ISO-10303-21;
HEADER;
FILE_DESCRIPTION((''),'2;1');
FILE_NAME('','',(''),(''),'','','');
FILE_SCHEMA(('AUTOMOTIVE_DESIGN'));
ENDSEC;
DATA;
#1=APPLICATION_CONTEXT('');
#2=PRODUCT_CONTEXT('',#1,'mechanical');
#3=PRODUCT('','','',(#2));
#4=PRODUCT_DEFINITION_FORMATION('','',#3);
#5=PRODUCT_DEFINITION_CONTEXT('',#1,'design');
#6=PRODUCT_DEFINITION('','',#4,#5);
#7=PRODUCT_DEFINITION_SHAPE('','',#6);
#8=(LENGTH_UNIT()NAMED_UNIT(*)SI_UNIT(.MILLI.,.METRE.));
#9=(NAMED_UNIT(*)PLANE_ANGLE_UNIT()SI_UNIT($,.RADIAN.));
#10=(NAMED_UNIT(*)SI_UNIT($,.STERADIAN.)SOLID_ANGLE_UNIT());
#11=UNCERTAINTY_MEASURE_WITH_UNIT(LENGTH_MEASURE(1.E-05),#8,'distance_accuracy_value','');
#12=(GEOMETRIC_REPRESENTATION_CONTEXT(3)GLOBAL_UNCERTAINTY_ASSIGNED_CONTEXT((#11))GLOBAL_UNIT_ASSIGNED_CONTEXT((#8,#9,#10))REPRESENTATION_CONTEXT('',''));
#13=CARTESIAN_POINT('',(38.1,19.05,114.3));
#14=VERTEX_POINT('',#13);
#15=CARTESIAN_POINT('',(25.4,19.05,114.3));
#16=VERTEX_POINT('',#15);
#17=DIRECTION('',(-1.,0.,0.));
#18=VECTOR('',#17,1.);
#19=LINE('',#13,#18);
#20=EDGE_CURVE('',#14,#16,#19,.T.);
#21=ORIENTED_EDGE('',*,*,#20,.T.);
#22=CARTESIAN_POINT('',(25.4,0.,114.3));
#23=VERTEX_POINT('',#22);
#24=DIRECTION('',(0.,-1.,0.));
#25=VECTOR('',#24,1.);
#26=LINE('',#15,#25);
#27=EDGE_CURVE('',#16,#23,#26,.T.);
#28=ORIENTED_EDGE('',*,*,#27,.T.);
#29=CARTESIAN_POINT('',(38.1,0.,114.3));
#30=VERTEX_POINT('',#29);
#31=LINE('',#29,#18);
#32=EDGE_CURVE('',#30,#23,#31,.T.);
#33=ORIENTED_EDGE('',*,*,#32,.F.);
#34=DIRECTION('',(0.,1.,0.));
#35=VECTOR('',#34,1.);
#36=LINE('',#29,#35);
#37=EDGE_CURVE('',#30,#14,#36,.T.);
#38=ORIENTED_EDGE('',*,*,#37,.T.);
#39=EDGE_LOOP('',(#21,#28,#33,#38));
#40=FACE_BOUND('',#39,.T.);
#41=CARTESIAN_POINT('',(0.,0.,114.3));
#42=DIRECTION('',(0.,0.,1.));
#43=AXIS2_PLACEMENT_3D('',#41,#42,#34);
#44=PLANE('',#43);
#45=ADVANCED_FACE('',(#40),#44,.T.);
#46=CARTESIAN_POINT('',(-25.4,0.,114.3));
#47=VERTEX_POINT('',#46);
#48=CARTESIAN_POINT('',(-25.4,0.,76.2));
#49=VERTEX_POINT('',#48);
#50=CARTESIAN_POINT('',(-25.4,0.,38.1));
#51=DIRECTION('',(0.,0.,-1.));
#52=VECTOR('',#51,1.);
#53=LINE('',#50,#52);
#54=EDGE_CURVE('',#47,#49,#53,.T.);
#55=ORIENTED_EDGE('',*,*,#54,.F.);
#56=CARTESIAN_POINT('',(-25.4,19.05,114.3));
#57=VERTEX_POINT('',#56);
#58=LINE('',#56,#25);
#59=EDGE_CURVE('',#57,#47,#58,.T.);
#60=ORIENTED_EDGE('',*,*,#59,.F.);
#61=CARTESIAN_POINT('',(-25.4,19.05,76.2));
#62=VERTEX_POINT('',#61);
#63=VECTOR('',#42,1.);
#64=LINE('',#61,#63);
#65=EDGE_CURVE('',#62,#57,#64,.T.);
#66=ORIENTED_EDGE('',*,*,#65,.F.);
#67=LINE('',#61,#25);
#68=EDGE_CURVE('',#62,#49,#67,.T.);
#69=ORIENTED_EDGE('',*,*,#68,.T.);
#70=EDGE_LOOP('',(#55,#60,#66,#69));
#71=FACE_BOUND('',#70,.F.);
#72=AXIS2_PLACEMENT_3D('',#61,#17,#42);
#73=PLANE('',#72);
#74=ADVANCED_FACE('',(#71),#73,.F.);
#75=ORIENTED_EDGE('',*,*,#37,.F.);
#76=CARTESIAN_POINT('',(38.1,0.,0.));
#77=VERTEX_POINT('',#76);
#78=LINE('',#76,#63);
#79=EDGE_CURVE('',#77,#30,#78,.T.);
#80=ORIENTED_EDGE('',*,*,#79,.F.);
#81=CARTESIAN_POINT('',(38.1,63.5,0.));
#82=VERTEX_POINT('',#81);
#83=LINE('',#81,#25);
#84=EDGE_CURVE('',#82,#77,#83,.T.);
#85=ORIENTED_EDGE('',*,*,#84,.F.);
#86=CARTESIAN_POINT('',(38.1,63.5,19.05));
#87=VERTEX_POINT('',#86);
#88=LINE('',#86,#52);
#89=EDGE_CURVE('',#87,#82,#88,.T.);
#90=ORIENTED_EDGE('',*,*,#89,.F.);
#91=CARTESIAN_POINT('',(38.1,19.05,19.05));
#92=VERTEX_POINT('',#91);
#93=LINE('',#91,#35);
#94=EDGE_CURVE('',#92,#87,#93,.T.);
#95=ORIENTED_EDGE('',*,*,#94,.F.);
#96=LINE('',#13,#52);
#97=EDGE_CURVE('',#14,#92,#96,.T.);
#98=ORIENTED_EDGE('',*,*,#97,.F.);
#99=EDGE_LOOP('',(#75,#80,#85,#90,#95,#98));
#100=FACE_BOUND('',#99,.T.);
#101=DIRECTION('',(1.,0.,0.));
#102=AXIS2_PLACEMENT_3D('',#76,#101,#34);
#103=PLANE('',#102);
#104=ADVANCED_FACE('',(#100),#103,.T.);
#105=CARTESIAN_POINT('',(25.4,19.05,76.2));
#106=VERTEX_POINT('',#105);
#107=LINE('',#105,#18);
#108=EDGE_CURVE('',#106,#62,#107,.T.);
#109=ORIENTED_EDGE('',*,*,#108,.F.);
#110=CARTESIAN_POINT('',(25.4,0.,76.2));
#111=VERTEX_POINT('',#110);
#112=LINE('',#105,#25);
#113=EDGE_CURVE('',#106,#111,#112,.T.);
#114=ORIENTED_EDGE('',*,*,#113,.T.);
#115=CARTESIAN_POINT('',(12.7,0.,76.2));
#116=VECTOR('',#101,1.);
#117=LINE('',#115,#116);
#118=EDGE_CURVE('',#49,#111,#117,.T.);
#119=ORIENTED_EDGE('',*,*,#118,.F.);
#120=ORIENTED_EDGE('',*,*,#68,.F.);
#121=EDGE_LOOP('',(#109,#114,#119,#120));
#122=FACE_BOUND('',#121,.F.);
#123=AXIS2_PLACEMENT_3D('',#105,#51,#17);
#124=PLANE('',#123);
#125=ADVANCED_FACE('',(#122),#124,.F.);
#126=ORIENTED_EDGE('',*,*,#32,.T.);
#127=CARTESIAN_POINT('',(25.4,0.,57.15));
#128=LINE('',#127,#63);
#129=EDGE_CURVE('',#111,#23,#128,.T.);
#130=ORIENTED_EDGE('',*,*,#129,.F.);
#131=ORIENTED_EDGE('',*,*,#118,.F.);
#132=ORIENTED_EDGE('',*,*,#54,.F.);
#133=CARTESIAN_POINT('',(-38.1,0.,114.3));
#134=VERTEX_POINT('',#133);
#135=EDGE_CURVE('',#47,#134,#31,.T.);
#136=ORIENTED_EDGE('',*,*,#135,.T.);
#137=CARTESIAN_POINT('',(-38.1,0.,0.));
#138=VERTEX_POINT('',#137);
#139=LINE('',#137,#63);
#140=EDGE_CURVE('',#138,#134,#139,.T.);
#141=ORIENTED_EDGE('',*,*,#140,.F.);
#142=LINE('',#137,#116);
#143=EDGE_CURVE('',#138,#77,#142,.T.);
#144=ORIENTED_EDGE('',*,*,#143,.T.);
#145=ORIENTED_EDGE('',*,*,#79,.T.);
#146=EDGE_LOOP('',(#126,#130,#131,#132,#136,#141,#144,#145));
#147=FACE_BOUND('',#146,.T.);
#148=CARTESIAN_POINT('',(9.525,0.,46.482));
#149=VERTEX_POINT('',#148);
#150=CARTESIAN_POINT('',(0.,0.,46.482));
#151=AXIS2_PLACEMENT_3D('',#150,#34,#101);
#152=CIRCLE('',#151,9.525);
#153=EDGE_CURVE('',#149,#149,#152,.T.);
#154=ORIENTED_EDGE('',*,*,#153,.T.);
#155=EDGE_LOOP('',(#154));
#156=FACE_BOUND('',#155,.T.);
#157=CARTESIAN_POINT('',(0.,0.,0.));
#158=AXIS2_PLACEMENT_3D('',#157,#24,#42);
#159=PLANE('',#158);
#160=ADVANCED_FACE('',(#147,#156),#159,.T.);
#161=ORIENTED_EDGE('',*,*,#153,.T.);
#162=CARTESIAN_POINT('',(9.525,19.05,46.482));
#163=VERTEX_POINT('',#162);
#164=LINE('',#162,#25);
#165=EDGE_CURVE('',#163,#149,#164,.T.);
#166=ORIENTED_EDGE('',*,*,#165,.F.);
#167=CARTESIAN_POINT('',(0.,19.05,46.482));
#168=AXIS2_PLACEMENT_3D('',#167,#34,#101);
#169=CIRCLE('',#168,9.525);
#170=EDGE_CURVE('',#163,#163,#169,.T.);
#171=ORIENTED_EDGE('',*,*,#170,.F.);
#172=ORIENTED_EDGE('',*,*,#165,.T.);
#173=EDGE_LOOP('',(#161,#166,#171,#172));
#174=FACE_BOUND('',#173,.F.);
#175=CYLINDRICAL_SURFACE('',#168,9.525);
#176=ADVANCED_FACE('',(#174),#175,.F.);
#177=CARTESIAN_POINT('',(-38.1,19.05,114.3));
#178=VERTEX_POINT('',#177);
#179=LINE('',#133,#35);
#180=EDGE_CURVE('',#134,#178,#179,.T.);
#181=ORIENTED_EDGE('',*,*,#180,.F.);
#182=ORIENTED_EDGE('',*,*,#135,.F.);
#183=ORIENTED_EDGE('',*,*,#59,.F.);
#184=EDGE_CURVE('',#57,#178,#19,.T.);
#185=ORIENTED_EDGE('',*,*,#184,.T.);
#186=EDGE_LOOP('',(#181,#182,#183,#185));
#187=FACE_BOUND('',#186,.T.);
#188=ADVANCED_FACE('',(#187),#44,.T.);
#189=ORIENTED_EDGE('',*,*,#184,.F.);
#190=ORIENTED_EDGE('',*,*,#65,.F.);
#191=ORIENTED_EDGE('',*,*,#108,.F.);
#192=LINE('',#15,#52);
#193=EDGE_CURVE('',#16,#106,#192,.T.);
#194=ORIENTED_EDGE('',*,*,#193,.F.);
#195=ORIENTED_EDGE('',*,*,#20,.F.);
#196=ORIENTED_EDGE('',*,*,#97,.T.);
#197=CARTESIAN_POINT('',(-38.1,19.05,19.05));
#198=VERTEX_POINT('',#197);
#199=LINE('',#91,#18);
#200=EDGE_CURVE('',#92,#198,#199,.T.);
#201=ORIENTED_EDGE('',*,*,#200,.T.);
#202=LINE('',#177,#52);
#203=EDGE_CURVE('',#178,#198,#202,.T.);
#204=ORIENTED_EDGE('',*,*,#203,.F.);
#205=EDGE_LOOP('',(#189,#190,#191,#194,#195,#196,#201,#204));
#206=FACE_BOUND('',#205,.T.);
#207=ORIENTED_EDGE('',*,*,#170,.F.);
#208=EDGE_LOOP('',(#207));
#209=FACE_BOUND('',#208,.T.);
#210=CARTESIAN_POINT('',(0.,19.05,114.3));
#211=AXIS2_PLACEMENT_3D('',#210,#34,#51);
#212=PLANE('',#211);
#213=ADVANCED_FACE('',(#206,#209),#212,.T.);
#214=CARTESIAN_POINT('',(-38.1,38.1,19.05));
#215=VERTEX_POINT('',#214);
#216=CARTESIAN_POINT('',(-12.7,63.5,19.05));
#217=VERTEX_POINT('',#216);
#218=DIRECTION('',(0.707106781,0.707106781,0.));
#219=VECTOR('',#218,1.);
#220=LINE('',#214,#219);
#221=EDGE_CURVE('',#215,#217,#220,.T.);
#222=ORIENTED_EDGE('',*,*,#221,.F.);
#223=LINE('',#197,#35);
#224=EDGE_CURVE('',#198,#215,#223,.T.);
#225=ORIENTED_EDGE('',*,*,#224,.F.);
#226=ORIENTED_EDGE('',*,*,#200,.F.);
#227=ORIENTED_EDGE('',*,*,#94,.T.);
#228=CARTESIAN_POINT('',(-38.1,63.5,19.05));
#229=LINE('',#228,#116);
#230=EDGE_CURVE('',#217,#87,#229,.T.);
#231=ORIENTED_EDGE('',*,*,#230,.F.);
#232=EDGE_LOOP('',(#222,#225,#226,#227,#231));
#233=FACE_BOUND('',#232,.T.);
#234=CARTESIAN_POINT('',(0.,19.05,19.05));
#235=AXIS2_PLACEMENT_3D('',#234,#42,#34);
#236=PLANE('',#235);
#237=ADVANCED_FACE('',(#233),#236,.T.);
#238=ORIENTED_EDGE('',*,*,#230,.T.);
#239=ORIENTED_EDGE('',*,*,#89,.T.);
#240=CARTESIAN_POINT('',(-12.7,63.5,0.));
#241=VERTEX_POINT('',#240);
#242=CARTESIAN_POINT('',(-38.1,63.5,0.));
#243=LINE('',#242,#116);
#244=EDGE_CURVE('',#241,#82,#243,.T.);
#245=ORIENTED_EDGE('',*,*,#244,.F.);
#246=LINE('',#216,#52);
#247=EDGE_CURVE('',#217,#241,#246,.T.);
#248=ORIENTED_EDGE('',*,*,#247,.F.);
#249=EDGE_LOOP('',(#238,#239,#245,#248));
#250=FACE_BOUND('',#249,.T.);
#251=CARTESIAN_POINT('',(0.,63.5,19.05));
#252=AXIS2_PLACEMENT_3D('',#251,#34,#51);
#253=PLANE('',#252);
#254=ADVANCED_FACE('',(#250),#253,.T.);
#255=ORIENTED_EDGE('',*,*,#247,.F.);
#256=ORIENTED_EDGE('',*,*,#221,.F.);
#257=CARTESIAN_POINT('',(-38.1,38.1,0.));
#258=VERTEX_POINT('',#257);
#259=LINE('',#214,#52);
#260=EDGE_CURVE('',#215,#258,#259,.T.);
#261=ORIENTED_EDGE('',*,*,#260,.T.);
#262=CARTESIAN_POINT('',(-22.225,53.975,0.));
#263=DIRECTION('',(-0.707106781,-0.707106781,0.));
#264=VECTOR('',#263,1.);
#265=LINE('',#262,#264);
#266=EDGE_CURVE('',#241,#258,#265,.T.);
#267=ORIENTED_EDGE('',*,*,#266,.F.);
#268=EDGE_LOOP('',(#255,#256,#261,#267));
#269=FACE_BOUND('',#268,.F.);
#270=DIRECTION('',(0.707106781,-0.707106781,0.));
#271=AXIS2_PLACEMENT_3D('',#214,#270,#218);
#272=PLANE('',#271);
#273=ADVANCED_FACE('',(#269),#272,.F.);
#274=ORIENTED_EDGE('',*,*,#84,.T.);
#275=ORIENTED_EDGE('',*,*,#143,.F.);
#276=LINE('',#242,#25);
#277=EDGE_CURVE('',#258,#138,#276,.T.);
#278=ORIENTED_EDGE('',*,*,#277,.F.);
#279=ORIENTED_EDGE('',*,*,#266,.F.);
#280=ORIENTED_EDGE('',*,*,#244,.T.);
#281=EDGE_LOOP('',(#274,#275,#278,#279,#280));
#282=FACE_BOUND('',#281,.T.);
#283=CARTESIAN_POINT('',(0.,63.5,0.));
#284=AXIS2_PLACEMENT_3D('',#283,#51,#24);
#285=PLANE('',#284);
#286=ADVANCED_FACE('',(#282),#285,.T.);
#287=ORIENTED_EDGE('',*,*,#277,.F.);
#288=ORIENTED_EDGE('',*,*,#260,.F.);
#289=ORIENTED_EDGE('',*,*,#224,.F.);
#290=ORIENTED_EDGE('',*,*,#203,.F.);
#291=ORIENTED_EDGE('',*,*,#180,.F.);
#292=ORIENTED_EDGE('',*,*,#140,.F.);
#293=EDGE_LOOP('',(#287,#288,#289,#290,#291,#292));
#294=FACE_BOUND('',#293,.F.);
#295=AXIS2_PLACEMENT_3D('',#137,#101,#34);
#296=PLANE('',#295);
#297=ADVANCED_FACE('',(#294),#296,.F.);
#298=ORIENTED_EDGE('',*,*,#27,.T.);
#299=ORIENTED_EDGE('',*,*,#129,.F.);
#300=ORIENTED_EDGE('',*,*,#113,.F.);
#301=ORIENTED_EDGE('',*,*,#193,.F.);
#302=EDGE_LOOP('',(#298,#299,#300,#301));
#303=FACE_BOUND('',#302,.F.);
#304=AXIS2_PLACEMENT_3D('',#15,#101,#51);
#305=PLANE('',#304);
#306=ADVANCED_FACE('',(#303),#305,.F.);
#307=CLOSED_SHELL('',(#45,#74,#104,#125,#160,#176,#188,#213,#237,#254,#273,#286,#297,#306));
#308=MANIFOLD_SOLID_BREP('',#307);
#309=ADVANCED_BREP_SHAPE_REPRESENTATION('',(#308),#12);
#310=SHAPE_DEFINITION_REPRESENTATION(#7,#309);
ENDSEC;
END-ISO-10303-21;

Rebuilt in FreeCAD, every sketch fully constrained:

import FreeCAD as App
import Part
import Sketcher

V = App.Vector
Q = App.Units.Quantity


def add_polygon(sketch, points):
    """Adds a closed chain of lines whose ends are joined by coincident constraints."""
    first, n = sketch.GeometryCount, len(points)
    for a, b in zip(points, points[1:] + points[:1]):
        sketch.addGeometry(Part.LineSegment(App.Vector(*a, 0), App.Vector(*b, 0)), False)
    for i in range(n):
        sketch.addConstraint(Sketcher.Constraint("Coincident", first + i, 2, first + (i + 1) % n, 1))

doc = App.newDocument("Part")
body = doc.addObject("PartDesign::Body", "Body")

# Sketch on YZ plane
sketch1 = doc.addObject("Sketcher::SketchObject", "Sketch")
body.addObject(sketch1)
sketch1.AttachmentSupport = (doc.YZ_Plane, [""])
sketch1.MapMode = "FlatFace"
add_polygon(sketch1, [(0, 114), (0, 0), (64, 0), (64, 19), (19, 19), (19, 114)])  # lines 0-5
sketch1.addConstraint(Sketcher.Constraint("Vertical", 0))
sketch1.addConstraint(Sketcher.Constraint("Horizontal", 1))
sketch1.addConstraint(Sketcher.Constraint("Vertical", 2))
sketch1.addConstraint(Sketcher.Constraint("Horizontal", 3))
sketch1.addConstraint(Sketcher.Constraint("Vertical", 4))
sketch1.addConstraint(Sketcher.Constraint("Horizontal", 5))
sketch1.addConstraint(Sketcher.Constraint("Coincident", 0, 2, -1, 1))
sketch1.addConstraint(Sketcher.Constraint("Equal", 5, 2))
sketch1.addConstraint(Sketcher.Constraint("DistanceX", 1, 1, 1, 2, Q("2.5 in")))
sketch1.addConstraint(Sketcher.Constraint("DistanceY", 0, 2, 0, 1, Q("4.5 in")))
sketch1.addConstraint(Sketcher.Constraint("DistanceX", 5, 2, 5, 1, Q("0.75 in")))
pad1 = doc.addObject("PartDesign::Pad", "Pad")
body.addObject(pad1)
pad1.Profile = sketch1
pad1.Length = Q("3 in")
pad1.Midplane = True

# Sketch on XZ plane
sketch2 = doc.addObject("Sketcher::SketchObject", "Sketch001")
body.addObject(sketch2)
sketch2.AttachmentSupport = (doc.XZ_Plane, [""])
sketch2.MapMode = "FlatFace"
sketch2.AttachmentOffset = App.Placement(V(0, 0, -0.75 * 25.4), App.Rotation())
add_polygon(sketch2, [(-25, 76), (-25, 114), (25, 114), (25, 76)])  # lines 0-3
sketch2.addGeometry(Part.Circle(V(0, 46, 0), V(0, 0, 1), 10), False)  # 4
sketch2.addConstraint(Sketcher.Constraint("Vertical", 0))
sketch2.addConstraint(Sketcher.Constraint("Horizontal", 1))
sketch2.addConstraint(Sketcher.Constraint("Vertical", 2))
sketch2.addConstraint(Sketcher.Constraint("Horizontal", 3))
sketch2.addConstraint(Sketcher.Constraint("PointOnObject", 4, 3, -2))
sketch2.addConstraint(Sketcher.Constraint("Diameter", 4, Q("0.75 in")))
sketch2.addConstraint(Sketcher.Constraint("DistanceX", 1, 1, 1, 2, Q("2 in")))
sketch2.addConstraint(Sketcher.Constraint("DistanceY", 0, 1, 0, 2, Q("1.5 in")))
sketch2.addConstraint(Sketcher.Constraint("DistanceY", 4, 3, 0, 2, Q("2.67 in")))
sketch2.addConstraint(Sketcher.Constraint("DistanceX", 0, 2, -1, 1, Q("1 in")))
sketch2.addConstraint(Sketcher.Constraint("DistanceY", -1, 1, 2, 2, Q("3 in")))
pocket1 = doc.addObject("PartDesign::Pocket", "Pocket")
body.addObject(pocket1)
pocket1.Profile = sketch2
pocket1.Type = "ThroughAll"
pocket1.Reversed = True

# Sketch on XY plane
sketch3 = doc.addObject("Sketcher::SketchObject", "Sketch002")
body.addObject(sketch3)
sketch3.AttachmentSupport = (doc.XY_Plane, [""])
sketch3.MapMode = "FlatFace"
sketch3.AttachmentOffset = App.Placement(V(0, 0, 0.75 * 25.4), App.Rotation())
add_polygon(sketch3, [(-13, 64), (-38, 64), (-38, 38)])  # lines 0-2
sketch3.addConstraint(Sketcher.Constraint("Horizontal", 0))
sketch3.addConstraint(Sketcher.Constraint("Vertical", 1))
sketch3.addConstraint(Sketcher.Constraint("Equal", 0, 1))
sketch3.addConstraint(Sketcher.Constraint("DistanceX", 0, 2, 0, 1, Q("1 in")))
sketch3.addConstraint(Sketcher.Constraint("DistanceX", 0, 2, -1, 1, Q("1.5 in")))
sketch3.addConstraint(Sketcher.Constraint("DistanceY", -1, 1, 0, 2, Q("2.5 in")))
pocket2 = doc.addObject("PartDesign::Pocket", "Pocket001")
body.addObject(pocket2)
pocket2.Profile = sketch3
pocket2.Type = "ThroughAll"

doc.recompute()
